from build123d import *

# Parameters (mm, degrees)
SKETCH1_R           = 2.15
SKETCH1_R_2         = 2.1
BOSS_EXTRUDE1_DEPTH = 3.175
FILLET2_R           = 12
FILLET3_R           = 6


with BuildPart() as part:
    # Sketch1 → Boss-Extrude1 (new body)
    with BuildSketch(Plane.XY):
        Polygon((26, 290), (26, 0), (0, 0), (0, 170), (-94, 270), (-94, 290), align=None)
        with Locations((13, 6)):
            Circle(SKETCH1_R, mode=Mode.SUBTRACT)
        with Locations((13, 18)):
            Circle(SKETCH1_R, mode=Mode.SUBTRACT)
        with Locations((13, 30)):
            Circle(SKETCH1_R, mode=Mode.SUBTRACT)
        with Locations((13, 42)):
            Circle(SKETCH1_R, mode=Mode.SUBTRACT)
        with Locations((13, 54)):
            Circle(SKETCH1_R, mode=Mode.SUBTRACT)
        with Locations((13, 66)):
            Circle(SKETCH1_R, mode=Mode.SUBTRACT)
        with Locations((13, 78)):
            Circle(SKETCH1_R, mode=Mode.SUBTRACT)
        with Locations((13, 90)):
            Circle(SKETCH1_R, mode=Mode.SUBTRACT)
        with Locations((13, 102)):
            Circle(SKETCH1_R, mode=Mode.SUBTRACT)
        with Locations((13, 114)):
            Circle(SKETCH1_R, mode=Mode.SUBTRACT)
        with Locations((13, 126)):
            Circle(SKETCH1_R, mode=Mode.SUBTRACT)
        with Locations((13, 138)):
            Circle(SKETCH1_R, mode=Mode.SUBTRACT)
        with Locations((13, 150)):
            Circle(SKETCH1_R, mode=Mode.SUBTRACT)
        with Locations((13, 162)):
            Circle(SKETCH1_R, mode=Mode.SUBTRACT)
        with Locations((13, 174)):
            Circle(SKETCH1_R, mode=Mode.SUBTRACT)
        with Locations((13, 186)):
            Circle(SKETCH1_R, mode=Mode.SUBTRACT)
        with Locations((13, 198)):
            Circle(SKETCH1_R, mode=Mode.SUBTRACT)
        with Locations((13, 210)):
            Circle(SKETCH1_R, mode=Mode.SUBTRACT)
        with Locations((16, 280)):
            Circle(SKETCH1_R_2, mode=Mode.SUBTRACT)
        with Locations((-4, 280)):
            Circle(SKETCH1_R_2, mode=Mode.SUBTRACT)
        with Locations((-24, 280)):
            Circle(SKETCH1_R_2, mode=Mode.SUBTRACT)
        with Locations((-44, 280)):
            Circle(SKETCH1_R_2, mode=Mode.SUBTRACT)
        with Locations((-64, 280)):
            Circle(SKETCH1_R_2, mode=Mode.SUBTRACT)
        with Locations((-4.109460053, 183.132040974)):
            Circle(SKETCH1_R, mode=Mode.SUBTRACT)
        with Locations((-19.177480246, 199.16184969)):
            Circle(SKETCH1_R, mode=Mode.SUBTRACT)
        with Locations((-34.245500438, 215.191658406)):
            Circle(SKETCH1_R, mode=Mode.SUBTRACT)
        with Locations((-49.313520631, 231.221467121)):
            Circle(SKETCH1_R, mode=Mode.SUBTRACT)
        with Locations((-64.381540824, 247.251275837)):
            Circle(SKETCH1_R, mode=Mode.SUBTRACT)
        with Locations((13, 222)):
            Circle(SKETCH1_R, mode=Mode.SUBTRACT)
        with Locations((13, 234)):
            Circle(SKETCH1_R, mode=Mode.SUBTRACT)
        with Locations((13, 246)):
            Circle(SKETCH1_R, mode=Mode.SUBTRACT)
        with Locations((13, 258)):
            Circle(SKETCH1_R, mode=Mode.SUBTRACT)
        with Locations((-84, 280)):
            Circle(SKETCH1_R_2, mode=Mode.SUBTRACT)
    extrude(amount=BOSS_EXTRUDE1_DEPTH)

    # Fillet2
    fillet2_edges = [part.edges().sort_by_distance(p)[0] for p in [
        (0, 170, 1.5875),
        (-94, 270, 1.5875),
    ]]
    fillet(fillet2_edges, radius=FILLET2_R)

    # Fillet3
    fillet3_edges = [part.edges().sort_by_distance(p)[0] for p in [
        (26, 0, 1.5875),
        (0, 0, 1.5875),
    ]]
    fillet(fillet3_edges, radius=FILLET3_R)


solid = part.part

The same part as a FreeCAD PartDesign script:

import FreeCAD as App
import Part
import Sketcher

V = App.Vector


def edges_at(feature, points):
    """Names of the edges that pass closest to the given points."""
    edges = feature.Shape.Edges
    near = lambda p: min(range(len(edges)), key=lambda i: edges[i].distToShape(Part.Vertex(*p))[0])
    return sorted({f"Edge{near(p) + 1}" for p in points})

doc = App.newDocument("Part")
body = doc.addObject("PartDesign::Body", "Body")

sketch1 = body.newObject("Sketcher::SketchObject", "Sketch")
sketch1.AttachmentSupport = (doc.getObject("XY_Plane"), [""])
sketch1.MapMode = "FlatFace"
sketch1.addGeometry([
    Part.LineSegment(V(26, 0, 0), V(26, 290, 0)),
    Part.LineSegment(V(26, 290, 0), V(-94, 290, 0)),
    Part.LineSegment(V(-94, 290, 0), V(-94, 270, 0)),
    Part.LineSegment(V(-94, 270, 0), V(0, 170, 0)),
    Part.LineSegment(V(0, 170, 0), V(0, 0, 0)),
    Part.LineSegment(V(0, 0, 0), V(26, 0, 0)),
    Part.Circle(V(13, 6, 0), V(0, 0, 1), 2.15),
    Part.Circle(V(13, 18, 0), V(0, 0, 1), 2.15),
    Part.Circle(V(13, 30, 0), V(0, 0, 1), 2.15),
    Part.Circle(V(13, 42, 0), V(0, 0, 1), 2.15),
    Part.Circle(V(13, 54, 0), V(0, 0, 1), 2.15),
    Part.Circle(V(13, 66, 0), V(0, 0, 1), 2.15),
    Part.Circle(V(13, 78, 0), V(0, 0, 1), 2.15),
    Part.Circle(V(13, 90, 0), V(0, 0, 1), 2.15),
    Part.Circle(V(13, 102, 0), V(0, 0, 1), 2.15),
    Part.Circle(V(13, 114, 0), V(0, 0, 1), 2.15),
    Part.Circle(V(13, 126, 0), V(0, 0, 1), 2.15),
    Part.Circle(V(13, 138, 0), V(0, 0, 1), 2.15),
    Part.Circle(V(13, 150, 0), V(0, 0, 1), 2.15),
    Part.Circle(V(13, 162, 0), V(0, 0, 1), 2.15),
    Part.Circle(V(13, 174, 0), V(0, 0, 1), 2.15),
    Part.Circle(V(13, 186, 0), V(0, 0, 1), 2.15),
    Part.Circle(V(13, 198, 0), V(0, 0, 1), 2.15),
    Part.Circle(V(13, 210, 0), V(0, 0, 1), 2.15),
    Part.Circle(V(-4.10946, 183.132041, 0), V(0, 0, 1), 2.15),
    Part.Circle(V(-19.17748, 199.16185, 0), V(0, 0, 1), 2.15),
    Part.Circle(V(13, 222, 0), V(0, 0, 1), 2.15),
    Part.Circle(V(13, 234, 0), V(0, 0, 1), 2.15),
    Part.Circle(V(13, 246, 0), V(0, 0, 1), 2.15),
    Part.Circle(V(13, 258, 0), V(0, 0, 1), 2.15),
    Part.Circle(V(16, 280, 0), V(0, 0, 1), 2.1),
    Part.Circle(V(-4, 280, 0), V(0, 0, 1), 2.1),
    Part.Circle(V(-24, 280, 0), V(0, 0, 1), 2.1),
    Part.Circle(V(-34.2455, 215.191658, 0), V(0, 0, 1), 2.15),
    Part.Circle(V(-49.313521, 231.221467, 0), V(0, 0, 1), 2.15),
    Part.Circle(V(-44, 280, 0), V(0, 0, 1), 2.1),
    Part.Circle(V(-64.381541, 247.251276, 0), V(0, 0, 1), 2.15),
    Part.Circle(V(-64, 280, 0), V(0, 0, 1), 2.1),
    Part.Circle(V(-84, 280, 0), V(0, 0, 1), 2.1),
], False)
sketch1.addConstraint([
    Sketcher.Constraint("Coincident", 0, 2, 1, 1),
    Sketcher.Constraint("Coincident", 1, 2, 2, 1),
    Sketcher.Constraint("Coincident", 2, 2, 3, 1),
    Sketcher.Constraint("Coincident", 3, 2, 4, 1),
    Sketcher.Constraint("Coincident", 4, 2, 5, 1),
    Sketcher.Constraint("Coincident", 5, 2, 0, 1),
    Sketcher.Constraint("Vertical", 0),
    Sketcher.Constraint("Horizontal", 1),
    Sketcher.Constraint("Vertical", 2),
    Sketcher.Constraint("Vertical", 4),
    Sketcher.Constraint("Horizontal", 5),
    Sketcher.Constraint("Coincident", 4, 2, -1, 1),
    Sketcher.Constraint("Equal", 6, 7),
    Sketcher.Constraint("Equal", 7, 8),
    Sketcher.Constraint("Equal", 8, 9),
    Sketcher.Constraint("Equal", 9, 10),
    Sketcher.Constraint("Equal", 10, 11),
    Sketcher.Constraint("Equal", 11, 12),
    Sketcher.Constraint("Equal", 12, 13),
    Sketcher.Constraint("Equal", 13, 14),
    Sketcher.Constraint("Equal", 14, 15),
    Sketcher.Constraint("Equal", 15, 16),
    Sketcher.Constraint("Equal", 16, 17),
    Sketcher.Constraint("Equal", 17, 18),
    Sketcher.Constraint("Equal", 18, 19),
    Sketcher.Constraint("Equal", 19, 20),
    Sketcher.Constraint("Equal", 20, 21),
    Sketcher.Constraint("Equal", 21, 22),
    Sketcher.Constraint("Equal", 22, 23),
    Sketcher.Constraint("Equal", 23, 24),
    Sketcher.Constraint("Equal", 24, 25),
    Sketcher.Constraint("Equal", 25, 26),
    Sketcher.Constraint("Equal", 26, 27),
    Sketcher.Constraint("Equal", 27, 28),
    Sketcher.Constraint("Equal", 28, 29),
    Sketcher.Constraint("Equal", 30, 31),
    Sketcher.Constraint("Equal", 31, 32),
    Sketcher.Constraint("Equal", 29, 33),
    Sketcher.Constraint("Equal", 33, 34),
    Sketcher.Constraint("Equal", 32, 35),
    Sketcher.Constraint("Equal", 34, 36),
    Sketcher.Constraint("Equal", 35, 37),
    Sketcher.Constraint("Equal", 37, 38),
    Sketcher.Constraint("Horizontal", 30, 3, 31, 3),
    Sketcher.Constraint("Horizontal", 31, 3, 32, 3),
    Sketcher.Constraint("Horizontal", 32, 3, 35, 3),
    Sketcher.Constraint("Horizontal", 35, 3, 37, 3),
    Sketcher.Constraint("Horizontal", 37, 3, 38, 3),
    Sketcher.Constraint("Vertical", 6, 3, 7, 3),
    Sketcher.Constraint("Vertical", 7, 3, 8, 3),
    Sketcher.Constraint("Vertical", 8, 3, 9, 3),
    Sketcher.Constraint("Vertical", 9, 3, 10, 3),
    Sketcher.Constraint("Vertical", 10, 3, 11, 3),
    Sketcher.Constraint("Vertical", 11, 3, 12, 3),
    Sketcher.Constraint("Vertical", 12, 3, 13, 3),
    Sketcher.Constraint("Vertical", 13, 3, 14, 3),
    Sketcher.Constraint("Vertical", 14, 3, 15, 3),
    Sketcher.Constraint("Vertical", 15, 3, 16, 3),
    Sketcher.Constraint("Vertical", 16, 3, 17, 3),
    Sketcher.Constraint("Vertical", 17, 3, 18, 3),
    Sketcher.Constraint("Vertical", 18, 3, 19, 3),
    Sketcher.Constraint("Vertical", 19, 3, 20, 3),
    Sketcher.Constraint("Vertical", 20, 3, 21, 3),
    Sketcher.Constraint("Vertical", 21, 3, 22, 3),
    Sketcher.Constraint("Vertical", 22, 3, 23, 3),
    Sketcher.Constraint("Vertical", 23, 3, 26, 3),
    Sketcher.Constraint("Vertical", 26, 3, 27, 3),
    Sketcher.Constraint("Vertical", 27, 3, 28, 3),
    Sketcher.Constraint("Vertical", 28, 3, 29, 3),
    Sketcher.Constraint("Diameter", 6, 4.3),
    Sketcher.Constraint("Diameter", 30, 4.2),
    Sketcher.Constraint("DistanceX", 1, 2, 1, 1, 120.0),
    Sketcher.Constraint("DistanceX", 5, 1, 5, 2, 26.0),
    Sketcher.Constraint("DistanceY", 0, 1, 0, 2, 290.0),
    Sketcher.Constraint("DistanceY", 2, 2, 2, 1, 20.0),
    Sketcher.Constraint("DistanceY", 4, 2, 4, 1, 170.0),
    Sketcher.Constraint("DistanceX", -1, 1, 6, 3, 13.0),
    Sketcher.Constraint("DistanceY", -1, 1, 6, 3, 6.0),
    Sketcher.Constraint("DistanceY", -1, 1, 7, 3, 18.0),
    Sketcher.Constraint("DistanceY", -1, 1, 8, 3, 30.0),
    Sketcher.Constraint("DistanceY", -1, 1, 9, 3, 42.0),
    Sketcher.Constraint("DistanceY", -1, 1, 10, 3, 54.0),
    Sketcher.Constraint("DistanceY", -1, 1, 11, 3, 66.0),
    Sketcher.Constraint("DistanceY", -1, 1, 12, 3, 78.0),
    Sketcher.Constraint("DistanceY", -1, 1, 13, 3, 90.0),
    Sketcher.Constraint("DistanceY", -1, 1, 14, 3, 102.0),
    Sketcher.Constraint("DistanceY", -1, 1, 15, 3, 114.0),
    Sketcher.Constraint("DistanceY", -1, 1, 16, 3, 126.0),
    Sketcher.Constraint("DistanceY", -1, 1, 17, 3, 138.0),
    Sketcher.Constraint("DistanceY", -1, 1, 18, 3, 150.0),
    Sketcher.Constraint("DistanceY", -1, 1, 19, 3, 162.0),
    Sketcher.Constraint("DistanceY", -1, 1, 20, 3, 174.0),
    Sketcher.Constraint("DistanceY", -1, 1, 21, 3, 186.0),
    Sketcher.Constraint("DistanceY", -1, 1, 22, 3, 198.0),
    Sketcher.Constraint("DistanceY", -1, 1, 23, 3, 210.0),
    Sketcher.Constraint("DistanceY", -1, 1, 26, 3, 222.0),
    Sketcher.Constraint("DistanceY", -1, 1, 27, 3, 234.0),
    Sketcher.Constraint("DistanceY", -1, 1, 28, 3, 246.0),
    Sketcher.Constraint("DistanceY", -1, 1, 29, 3, 258.0),
    Sketcher.Constraint("DistanceX", -1, 1, 30, 3, 16.0),
    Sketcher.Constraint("DistanceY", -1, 1, 30, 3, 280.0),
    Sketcher.Constraint("DistanceX", 31, 3, -1, 1, 4.0),
    Sketcher.Constraint("DistanceX", 32, 3, -1, 1, 24.0),
    Sketcher.Constraint("DistanceX", 35, 3, -1, 1, 44.0),
    Sketcher.Constraint("DistanceX", 37, 3, -1, 1, 64.0),
    Sketcher.Constraint("DistanceX", 38, 3, -1, 1, 84.0),
    Sketcher.Constraint("DistanceX", 33, 3, -1, 1, 34.2455),
    Sketcher.Constraint("DistanceX", 24, 3, -1, 1, 4.10946),
    Sketcher.Constraint("DistanceY", -1, 1, 24, 3, 183.132041),
    Sketcher.Constraint("DistanceX", 25, 3, -1, 1, 19.17748),
    Sketcher.Constraint("DistanceY", -1, 1, 25, 3, 199.16185),
    Sketcher.Constraint("DistanceY", -1, 1, 33, 3, 215.191658),
    Sketcher.Constraint("DistanceX", 34, 3, -1, 1, 49.313521),
    Sketcher.Constraint("DistanceX", 36, 3, -1, 1, 64.381541),
    Sketcher.Constraint("DistanceY", 33, 3, 34, 3, 16.029809),
    Sketcher.Constraint("DistanceY", 34, 3, 36, 3, 16.029809),
])
pad1 = body.newObject("PartDesign::Pad", "Pad")
pad1.Profile = sketch1
pad1.Length = 3.175
doc.recompute()

fillet = body.newObject("PartDesign::Fillet", "Fillet")
fillet.Base = (pad1, edges_at(pad1, [(0, 170, 1.587), (-94, 270, 1.587)]))
fillet.Radius = 12
doc.recompute()

fillet2 = body.newObject("PartDesign::Fillet", "Fillet001")
fillet2.Base = (fillet, edges_at(fillet, [(26, 0, 1.587), (0, 0, 1.587)]))
fillet2.Radius = 6

doc.recompute()
